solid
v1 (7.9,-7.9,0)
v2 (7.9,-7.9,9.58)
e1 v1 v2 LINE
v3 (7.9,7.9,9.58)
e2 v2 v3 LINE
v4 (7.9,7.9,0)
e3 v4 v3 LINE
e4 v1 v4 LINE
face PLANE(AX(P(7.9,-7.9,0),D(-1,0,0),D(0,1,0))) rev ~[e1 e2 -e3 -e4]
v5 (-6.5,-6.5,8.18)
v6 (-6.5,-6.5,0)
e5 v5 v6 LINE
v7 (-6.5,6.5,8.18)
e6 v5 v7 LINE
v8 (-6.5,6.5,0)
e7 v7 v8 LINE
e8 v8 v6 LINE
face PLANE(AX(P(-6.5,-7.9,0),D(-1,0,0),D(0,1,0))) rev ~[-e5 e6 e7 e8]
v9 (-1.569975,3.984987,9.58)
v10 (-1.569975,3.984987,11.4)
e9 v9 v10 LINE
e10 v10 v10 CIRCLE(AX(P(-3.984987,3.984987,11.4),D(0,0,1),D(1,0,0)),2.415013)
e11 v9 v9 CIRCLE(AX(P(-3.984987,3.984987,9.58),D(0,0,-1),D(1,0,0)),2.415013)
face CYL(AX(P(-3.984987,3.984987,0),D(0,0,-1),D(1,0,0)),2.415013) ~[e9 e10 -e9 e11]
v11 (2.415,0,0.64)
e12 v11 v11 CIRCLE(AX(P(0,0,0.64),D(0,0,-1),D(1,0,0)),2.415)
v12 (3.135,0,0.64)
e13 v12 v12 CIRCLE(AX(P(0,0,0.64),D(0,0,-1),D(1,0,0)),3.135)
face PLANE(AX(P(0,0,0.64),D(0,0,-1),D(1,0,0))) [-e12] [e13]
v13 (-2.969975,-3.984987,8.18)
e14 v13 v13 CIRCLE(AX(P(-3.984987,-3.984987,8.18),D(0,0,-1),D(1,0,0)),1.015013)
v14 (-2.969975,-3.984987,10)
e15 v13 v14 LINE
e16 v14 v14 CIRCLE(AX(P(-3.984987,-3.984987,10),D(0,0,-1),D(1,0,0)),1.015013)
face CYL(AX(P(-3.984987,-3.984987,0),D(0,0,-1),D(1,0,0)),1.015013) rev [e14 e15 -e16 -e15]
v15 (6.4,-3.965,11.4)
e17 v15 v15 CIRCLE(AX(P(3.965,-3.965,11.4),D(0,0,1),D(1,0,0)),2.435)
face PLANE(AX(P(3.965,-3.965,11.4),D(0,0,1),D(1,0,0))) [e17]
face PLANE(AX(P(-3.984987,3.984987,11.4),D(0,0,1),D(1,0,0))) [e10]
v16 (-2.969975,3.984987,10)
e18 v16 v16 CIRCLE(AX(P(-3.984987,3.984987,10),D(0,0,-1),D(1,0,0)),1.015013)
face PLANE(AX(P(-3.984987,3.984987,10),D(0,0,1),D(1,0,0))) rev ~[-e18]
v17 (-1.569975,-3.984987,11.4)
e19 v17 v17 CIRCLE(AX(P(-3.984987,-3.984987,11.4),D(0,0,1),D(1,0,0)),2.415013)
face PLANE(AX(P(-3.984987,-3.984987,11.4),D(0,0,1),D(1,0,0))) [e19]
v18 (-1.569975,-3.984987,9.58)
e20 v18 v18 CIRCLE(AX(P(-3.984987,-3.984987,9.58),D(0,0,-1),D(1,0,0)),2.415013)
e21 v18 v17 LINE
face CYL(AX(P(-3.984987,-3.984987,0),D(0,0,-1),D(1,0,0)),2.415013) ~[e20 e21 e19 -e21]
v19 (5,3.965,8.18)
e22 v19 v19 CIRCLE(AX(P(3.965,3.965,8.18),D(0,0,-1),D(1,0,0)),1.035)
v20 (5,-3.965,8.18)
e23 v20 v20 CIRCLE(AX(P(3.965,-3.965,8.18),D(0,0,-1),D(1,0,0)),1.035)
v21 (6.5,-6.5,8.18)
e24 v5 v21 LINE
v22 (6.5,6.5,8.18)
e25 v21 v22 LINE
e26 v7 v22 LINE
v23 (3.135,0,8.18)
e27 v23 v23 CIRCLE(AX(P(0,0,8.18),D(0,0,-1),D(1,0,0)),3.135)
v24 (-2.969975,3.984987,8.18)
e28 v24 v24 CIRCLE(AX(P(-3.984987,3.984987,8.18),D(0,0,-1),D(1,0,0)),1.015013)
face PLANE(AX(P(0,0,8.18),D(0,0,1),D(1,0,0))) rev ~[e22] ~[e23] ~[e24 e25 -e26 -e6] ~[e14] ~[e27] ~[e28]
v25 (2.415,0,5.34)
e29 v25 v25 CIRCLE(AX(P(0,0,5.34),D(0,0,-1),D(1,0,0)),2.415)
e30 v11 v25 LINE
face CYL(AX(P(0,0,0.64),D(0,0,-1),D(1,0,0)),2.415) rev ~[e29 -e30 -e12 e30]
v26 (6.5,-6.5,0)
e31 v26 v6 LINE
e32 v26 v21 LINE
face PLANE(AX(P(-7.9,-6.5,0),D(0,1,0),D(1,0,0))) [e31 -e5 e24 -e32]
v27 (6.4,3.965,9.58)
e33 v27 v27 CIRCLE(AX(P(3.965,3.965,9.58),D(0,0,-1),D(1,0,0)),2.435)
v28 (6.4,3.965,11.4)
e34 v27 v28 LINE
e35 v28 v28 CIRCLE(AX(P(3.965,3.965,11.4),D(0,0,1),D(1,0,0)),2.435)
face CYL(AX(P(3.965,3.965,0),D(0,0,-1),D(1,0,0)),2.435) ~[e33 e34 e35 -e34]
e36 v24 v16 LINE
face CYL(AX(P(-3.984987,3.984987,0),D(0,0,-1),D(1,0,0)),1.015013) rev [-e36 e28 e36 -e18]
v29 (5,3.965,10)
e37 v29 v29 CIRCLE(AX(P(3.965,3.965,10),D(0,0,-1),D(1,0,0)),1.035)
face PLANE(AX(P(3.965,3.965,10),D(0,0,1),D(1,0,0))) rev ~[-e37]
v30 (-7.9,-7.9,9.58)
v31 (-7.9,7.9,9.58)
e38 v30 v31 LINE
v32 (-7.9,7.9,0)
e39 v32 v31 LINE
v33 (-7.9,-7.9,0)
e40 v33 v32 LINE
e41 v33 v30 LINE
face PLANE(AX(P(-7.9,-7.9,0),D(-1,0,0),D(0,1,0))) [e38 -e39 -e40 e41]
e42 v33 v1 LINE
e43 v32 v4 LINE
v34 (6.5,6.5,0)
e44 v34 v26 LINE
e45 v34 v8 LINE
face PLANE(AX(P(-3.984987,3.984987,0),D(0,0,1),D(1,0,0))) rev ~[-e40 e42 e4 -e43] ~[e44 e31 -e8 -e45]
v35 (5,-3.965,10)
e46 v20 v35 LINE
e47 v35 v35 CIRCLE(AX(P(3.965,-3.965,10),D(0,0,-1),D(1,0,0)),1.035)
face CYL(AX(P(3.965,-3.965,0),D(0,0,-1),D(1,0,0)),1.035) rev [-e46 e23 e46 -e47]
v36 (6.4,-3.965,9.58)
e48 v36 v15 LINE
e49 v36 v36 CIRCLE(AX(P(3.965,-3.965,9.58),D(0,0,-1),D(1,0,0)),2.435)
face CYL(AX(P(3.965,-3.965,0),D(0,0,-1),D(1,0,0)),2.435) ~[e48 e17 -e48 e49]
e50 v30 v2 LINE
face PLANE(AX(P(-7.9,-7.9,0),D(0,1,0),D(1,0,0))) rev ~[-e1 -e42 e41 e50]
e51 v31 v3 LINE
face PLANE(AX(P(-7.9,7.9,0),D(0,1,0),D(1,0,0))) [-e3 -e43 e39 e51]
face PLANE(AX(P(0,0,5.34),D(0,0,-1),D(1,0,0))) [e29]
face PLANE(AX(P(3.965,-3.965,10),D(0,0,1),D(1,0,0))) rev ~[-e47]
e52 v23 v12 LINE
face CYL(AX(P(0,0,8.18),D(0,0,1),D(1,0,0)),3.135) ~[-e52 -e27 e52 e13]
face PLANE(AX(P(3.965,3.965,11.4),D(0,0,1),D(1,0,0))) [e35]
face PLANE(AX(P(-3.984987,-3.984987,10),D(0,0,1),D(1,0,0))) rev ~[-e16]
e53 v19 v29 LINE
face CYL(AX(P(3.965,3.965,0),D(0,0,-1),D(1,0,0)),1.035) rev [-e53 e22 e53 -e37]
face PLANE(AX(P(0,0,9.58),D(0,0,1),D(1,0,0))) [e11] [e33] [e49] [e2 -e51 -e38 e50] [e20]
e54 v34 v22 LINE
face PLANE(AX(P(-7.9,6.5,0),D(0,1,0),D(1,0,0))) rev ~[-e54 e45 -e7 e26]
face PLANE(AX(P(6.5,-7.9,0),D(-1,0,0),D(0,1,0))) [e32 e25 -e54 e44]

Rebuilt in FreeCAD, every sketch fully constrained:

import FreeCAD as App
import Part
import Sketcher
from FreeCAD import Vector


def faces_at(feature, points):
    """Names of the faces that lie closest to the given points."""
    faces = feature.Shape.Faces
    near = lambda p: min(range(len(faces)), key=lambda i: faces[i].distToShape(Part.Vertex(*p))[0])
    return sorted({f"Face{near(p) + 1}" for p in points})

doc = App.newDocument("Part")
body = doc.addObject("PartDesign::Body", "Body")

# Sketch on XY plane
sketch1 = body.newObject("Sketcher::SketchObject", "Sketch")
sketch1.AttachmentSupport = (doc.getObject("XY_Plane"), [""])
sketch1.MapMode = "FlatFace"
sketch1.addGeometry(Part.LineSegment(Vector(-8, 8, 0), Vector(-8, -8, 0)), False)
sketch1.addGeometry(Part.LineSegment(Vector(-8, -8, 0), Vector(8, -8, 0)), False)
sketch1.addGeometry(Part.LineSegment(Vector(8, -8, 0), Vector(8, 8, 0)), False)
sketch1.addGeometry(Part.LineSegment(Vector(8, 8, 0), Vector(-8, 8, 0)), False)
sketch1.addConstraint(Sketcher.Constraint("Coincident", 0, 2, 1, 1))
sketch1.addConstraint(Sketcher.Constraint("Coincident", 1, 2, 2, 1))
sketch1.addConstraint(Sketcher.Constraint("Coincident", 2, 2, 3, 1))
sketch1.addConstraint(Sketcher.Constraint("Coincident", 3, 2, 0, 1))
sketch1.addConstraint(Sketcher.Constraint("Vertical", 0))
sketch1.addConstraint(Sketcher.Constraint("Horizontal", 1))
sketch1.addConstraint(Sketcher.Constraint("Vertical", 2))
sketch1.addConstraint(Sketcher.Constraint("Horizontal", 3))
sketch1.addConstraint(Sketcher.Constraint("Symmetric", 0, 2, 2, 2, -1, 1))
sketch1.addConstraint(Sketcher.Constraint("Equal", 3, 0))
sketch1.addConstraint(Sketcher.Constraint("DistanceX", 1, 1, 1, 2, 15.8))
pad1 = body.newObject("PartDesign::Pad", "Pad")
pad1.Profile = sketch1
pad1.Length = 9.58

# Sketch on XY plane
sketch2 = body.newObject("Sketcher::SketchObject", "Sketch001")
sketch2.AttachmentSupport = (doc.getObject("XY_Plane"), [""])
sketch2.MapMode = "FlatFace"
sketch2.addGeometry(Part.Circle(Vector(-4, 4, 0), Vector(0, 0, 1), 2.4), False)
sketch2.addGeometry(Part.Circle(Vector(4, 4, 0), Vector(0, 0, 1), 2.4), False)
sketch2.addGeometry(Part.Circle(Vector(4, -4, 0), Vector(0, 0, 1), 2.4), False)
sketch2.addGeometry(Part.Circle(Vector(-4, -4, 0), Vector(0, 0, 1), 2.4), False)
sketch2.addConstraint(Sketcher.Constraint("Equal", 1, 2))
sketch2.addConstraint(Sketcher.Constraint("Equal", 0, 3))
sketch2.addConstraint(Sketcher.Constraint("Symmetric", 1, 3, 2, 3, -1))
sketch2.addConstraint(Sketcher.Constraint("Symmetric", 0, 3, 3, 3, -1))
sketch2.addConstraint(Sketcher.Constraint("Diameter", 1, 4.87))
sketch2.addConstraint(Sketcher.Constraint("DistanceY", 2, 3, 1, 3, 7.93))
sketch2.addConstraint(Sketcher.Constraint("Diameter", 0, 4.830025))
sketch2.addConstraint(Sketcher.Constraint("DistanceX", -1, 1, 1, 3, 3.965))
sketch2.addConstraint(Sketcher.Constraint("DistanceX", 0, 3, -1, 1, 3.984987))
sketch2.addConstraint(Sketcher.Constraint("DistanceY", -1, 1, 0, 3, 3.984987))
pad2 = body.newObject("PartDesign::Pad", "Pad001")
pad2.Profile = sketch2
pad2.Length = 11.4
doc.recompute()

thickness = body.newObject("PartDesign::Thickness", "Thickness")
thickness.Base = (pad2, faces_at(pad2, [(0, 0, 0)]))
thickness.Value = 1.4
thickness.Reversed = True
thickness.Join = "Intersection"

# Sketch on XY plane
sketch3 = body.newObject("Sketcher::SketchObject", "Sketch002")
sketch3.AttachmentSupport = (doc.getObject("XY_Plane"), [""])
sketch3.MapMode = "FlatFace"
sketch3.AttachmentOffset = App.Placement(Vector(0, 0, 8.18), App.Rotation())
sketch3.addGeometry(Part.Circle(Vector(0, 0, 0), Vector(0, 0, 1), 3.1), False)
sketch3.addConstraint(Sketcher.Constraint("Coincident", 0, 3, -1, 1))
sketch3.addConstraint(Sketcher.Constraint("Diameter", 0, 6.27))
pad3 = body.newObject("PartDesign::Pad", "Pad002")
pad3.Profile = sketch3
pad3.Length = 7.54
pad3.Reversed = True

# Sketch on XY plane
sketch4 = body.newObject("Sketcher::SketchObject", "Sketch003")
sketch4.AttachmentSupport = (doc.getObject("XY_Plane"), [""])
sketch4.MapMode = "FlatFace"
sketch4.AttachmentOffset = App.Placement(Vector(0, 0, 0.64), App.Rotation())
sketch4.addGeometry(Part.Circle(Vector(0, 0, 0), Vector(0, 0, 1), 2.4), False)
sketch4.addConstraint(Sketcher.Constraint("Coincident", 0, 3, -1, 1))
sketch4.addConstraint(Sketcher.Constraint("Diameter", 0, 4.83))
pocket1 = body.newObject("PartDesign::Pocket", "Pocket")
pocket1.Profile = sketch4
pocket1.Length = 4.7
pocket1.Reversed = True

doc.recompute()
